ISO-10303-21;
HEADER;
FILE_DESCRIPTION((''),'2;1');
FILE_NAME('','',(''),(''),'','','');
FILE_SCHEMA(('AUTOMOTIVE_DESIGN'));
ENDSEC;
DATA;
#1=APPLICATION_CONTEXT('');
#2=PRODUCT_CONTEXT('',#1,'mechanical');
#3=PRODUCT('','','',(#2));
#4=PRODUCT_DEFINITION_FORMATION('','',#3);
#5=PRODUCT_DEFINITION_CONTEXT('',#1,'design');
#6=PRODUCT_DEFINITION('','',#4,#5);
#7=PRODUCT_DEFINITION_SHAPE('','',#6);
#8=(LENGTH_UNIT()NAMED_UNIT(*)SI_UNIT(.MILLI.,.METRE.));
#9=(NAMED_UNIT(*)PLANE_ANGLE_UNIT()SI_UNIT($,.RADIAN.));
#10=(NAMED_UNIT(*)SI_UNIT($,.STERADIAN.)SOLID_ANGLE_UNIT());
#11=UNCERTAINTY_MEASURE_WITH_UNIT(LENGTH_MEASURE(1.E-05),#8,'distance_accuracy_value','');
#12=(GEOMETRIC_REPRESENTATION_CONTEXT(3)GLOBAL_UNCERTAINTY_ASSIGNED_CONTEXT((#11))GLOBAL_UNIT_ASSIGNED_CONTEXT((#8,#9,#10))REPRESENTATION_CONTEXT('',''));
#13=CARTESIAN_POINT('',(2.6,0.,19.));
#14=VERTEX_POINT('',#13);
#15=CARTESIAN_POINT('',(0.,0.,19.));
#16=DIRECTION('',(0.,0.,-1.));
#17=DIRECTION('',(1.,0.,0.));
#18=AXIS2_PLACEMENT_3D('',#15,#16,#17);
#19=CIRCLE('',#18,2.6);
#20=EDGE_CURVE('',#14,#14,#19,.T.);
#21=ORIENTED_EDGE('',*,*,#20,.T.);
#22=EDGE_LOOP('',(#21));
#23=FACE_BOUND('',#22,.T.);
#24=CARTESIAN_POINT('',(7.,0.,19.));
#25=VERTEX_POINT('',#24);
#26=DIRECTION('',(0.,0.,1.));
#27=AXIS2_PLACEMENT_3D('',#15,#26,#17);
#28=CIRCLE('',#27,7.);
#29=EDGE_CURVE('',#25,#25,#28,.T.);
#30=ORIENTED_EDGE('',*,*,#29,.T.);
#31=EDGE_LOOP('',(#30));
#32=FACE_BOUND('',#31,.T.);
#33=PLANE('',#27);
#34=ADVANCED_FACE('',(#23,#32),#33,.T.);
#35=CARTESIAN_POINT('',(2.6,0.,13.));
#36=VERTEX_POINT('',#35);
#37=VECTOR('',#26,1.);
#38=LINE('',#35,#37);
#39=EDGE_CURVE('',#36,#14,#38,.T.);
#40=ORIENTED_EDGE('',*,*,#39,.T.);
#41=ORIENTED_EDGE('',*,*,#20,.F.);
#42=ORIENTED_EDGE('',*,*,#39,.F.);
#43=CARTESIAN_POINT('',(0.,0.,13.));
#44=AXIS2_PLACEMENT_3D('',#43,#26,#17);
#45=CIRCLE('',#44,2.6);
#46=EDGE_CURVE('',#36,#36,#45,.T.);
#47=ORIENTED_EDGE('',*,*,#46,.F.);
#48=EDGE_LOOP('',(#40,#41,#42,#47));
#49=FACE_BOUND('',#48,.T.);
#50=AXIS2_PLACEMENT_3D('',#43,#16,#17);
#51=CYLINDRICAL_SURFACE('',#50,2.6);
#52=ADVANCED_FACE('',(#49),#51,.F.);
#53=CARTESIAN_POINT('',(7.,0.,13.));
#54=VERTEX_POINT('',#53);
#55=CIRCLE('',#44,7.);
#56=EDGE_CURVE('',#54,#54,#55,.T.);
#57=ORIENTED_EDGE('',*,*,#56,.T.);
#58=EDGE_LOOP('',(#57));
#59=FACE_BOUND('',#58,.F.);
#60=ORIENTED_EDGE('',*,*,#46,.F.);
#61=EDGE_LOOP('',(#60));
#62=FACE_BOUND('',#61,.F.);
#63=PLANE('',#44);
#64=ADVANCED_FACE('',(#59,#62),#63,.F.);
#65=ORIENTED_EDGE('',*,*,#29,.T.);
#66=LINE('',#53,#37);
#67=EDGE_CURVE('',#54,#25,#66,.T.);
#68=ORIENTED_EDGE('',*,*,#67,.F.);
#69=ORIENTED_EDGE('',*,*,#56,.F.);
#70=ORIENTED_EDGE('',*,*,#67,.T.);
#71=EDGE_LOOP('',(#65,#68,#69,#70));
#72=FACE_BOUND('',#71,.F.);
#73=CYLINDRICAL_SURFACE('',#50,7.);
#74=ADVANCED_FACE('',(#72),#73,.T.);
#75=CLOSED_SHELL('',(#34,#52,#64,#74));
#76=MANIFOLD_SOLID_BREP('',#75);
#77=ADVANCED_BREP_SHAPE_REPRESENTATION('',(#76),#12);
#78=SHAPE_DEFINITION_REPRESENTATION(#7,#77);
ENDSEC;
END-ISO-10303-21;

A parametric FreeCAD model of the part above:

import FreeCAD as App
import Part
import Sketcher

doc = App.newDocument("Part")
params = doc.addObject("Spreadsheet::Sheet", "Params")
for row, (alias, value) in enumerate([
    ("sketch1_diameter", "5.2 mm"),
    ("pad1_length", "12 mm"),
    ("sketch2_diameter", "14 mm"),
    ("pad2_length", "6 mm"),
], start=1):
    params.set(f"A{row}", alias)
    params.set(f"B{row}", "=" + value)
    params.setAlias(f"B{row}", alias)

body = doc.addObject("PartDesign::Body", "Body")

# Sketch on XY plane
sketch1 = doc.addObject("Sketcher::SketchObject", "Sketch")
body.addObject(sketch1)
sketch1.AttachmentSupport = (doc.XY_Plane, [""])
sketch1.MapMode = "FlatFace"
sketch1.AttachmentOffset = App.Placement(App.Vector(0, 0, 13), App.Rotation())
sketch1.addGeometry(Part.Circle(App.Vector(0, 0, 0), App.Vector(0, 0, 1), 2.6), False)
sketch1.addConstraint([
    Sketcher.Constraint("Coincident", 0, 3, -1, 1),
    Sketcher.Constraint("Diameter", 0, 5.2),
])
sketch1.setExpression("Constraints[1]", "Params.sketch1_diameter")
pad1 = doc.addObject("PartDesign::Pad", "Pad")
body.addObject(pad1)
pad1.Profile = sketch1
pad1.setExpression("Length", "Params.pad1_length")
body2 = doc.addObject("PartDesign::Body", "Body001")

# Sketch on XY plane
sketch2 = doc.addObject("Sketcher::SketchObject", "Sketch001")
body2.addObject(sketch2)
sketch2.AttachmentSupport = (doc.getObject("XY_Plane001"), [""])
sketch2.MapMode = "FlatFace"
sketch2.AttachmentOffset = App.Placement(App.Vector(0, 0, 13), App.Rotation())
sketch2.addGeometry(Part.Circle(App.Vector(0, 0, 0), App.Vector(0, 0, 1), 7), False)
sketch2.addConstraint([
    Sketcher.Constraint("Coincident", 0, 3, -1, 1),
    Sketcher.Constraint("Diameter", 0, 14.0),
])
sketch2.setExpression("Constraints[1]", "Params.sketch2_diameter")
pad2 = doc.addObject("PartDesign::Pad", "Pad001")
body2.addObject(pad2)
pad2.Profile = sketch2
pad2.setExpression("Length", "Params.pad2_length")
doc.recompute()

boolean = doc.addObject("PartDesign::Boolean", "Boolean")
body2.addObject(boolean)
boolean.Type = "Cut"
boolean.addObjects([body])

doc.recompute()
